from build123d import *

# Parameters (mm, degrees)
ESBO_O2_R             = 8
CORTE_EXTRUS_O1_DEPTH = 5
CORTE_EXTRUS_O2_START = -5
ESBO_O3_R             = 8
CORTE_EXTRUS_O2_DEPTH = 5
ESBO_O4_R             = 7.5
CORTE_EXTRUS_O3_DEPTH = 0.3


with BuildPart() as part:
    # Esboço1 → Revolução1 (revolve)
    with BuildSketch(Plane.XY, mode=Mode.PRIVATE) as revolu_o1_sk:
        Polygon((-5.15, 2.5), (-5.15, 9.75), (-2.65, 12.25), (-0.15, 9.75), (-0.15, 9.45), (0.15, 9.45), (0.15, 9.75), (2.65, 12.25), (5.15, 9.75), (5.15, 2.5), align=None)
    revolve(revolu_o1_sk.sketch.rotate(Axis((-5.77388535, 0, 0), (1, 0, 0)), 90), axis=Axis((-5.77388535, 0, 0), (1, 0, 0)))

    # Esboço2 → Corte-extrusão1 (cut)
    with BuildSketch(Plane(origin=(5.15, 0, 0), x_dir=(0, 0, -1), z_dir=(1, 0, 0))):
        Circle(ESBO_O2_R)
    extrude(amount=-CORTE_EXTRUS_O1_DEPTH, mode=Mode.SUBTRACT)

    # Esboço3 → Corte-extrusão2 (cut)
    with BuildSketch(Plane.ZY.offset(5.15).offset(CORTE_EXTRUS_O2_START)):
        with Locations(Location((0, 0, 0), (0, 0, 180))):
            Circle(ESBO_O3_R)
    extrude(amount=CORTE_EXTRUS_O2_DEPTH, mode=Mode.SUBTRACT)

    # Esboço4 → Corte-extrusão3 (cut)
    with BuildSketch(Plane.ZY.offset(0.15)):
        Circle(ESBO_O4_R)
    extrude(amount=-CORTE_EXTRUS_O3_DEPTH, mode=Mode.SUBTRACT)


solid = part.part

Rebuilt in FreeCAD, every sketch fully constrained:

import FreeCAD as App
import Part
import Sketcher

V = App.Vector
Q = App.Units.Quantity

doc = App.newDocument("Part")
body = doc.addObject("PartDesign::Body", "Body")

sketch1 = body.newObject("Sketcher::SketchObject", "Sketch")
sketch1.AttachmentSupport = (doc.getObject("XY_Plane"), [""])
sketch1.MapMode = "FlatFace"
sketch1.addGeometry([
    Part.LineSegment(V(-5.15, 9.75, 0), V(-5.15, 2.5, 0)),
    Part.LineSegment(V(-5.15, 2.5, 0), V(5.15, 2.5, 0)),
    Part.LineSegment(V(5.15, 2.5, 0), V(5.15, 9.75, 0)),
    Part.LineSegment(V(5.15, 9.75, 0), V(2.65, 12.25, 0)),
    Part.LineSegment(V(2.65, 12.25, 0), V(0.15, 9.75, 0)),
    Part.LineSegment(V(0.15, 9.75, 0), V(0.15, 9.45, 0)),
    Part.LineSegment(V(0.15, 9.45, 0), V(-0.15, 9.45, 0)),
    Part.LineSegment(V(-0.15, 9.45, 0), V(-0.15, 9.75, 0)),
    Part.LineSegment(V(-0.15, 9.75, 0), V(-2.65, 12.25, 0)),
    Part.LineSegment(V(-2.65, 12.25, 0), V(-5.15, 9.75, 0)),
], False)
sketch1.addConstraint([
    Sketcher.Constraint("Coincident", 0, 2, 1, 1),
    Sketcher.Constraint("Coincident", 1, 2, 2, 1),
    Sketcher.Constraint("Coincident", 2, 2, 3, 1),
    Sketcher.Constraint("Coincident", 3, 2, 4, 1),
    Sketcher.Constraint("Coincident", 4, 2, 5, 1),
    Sketcher.Constraint("Coincident", 5, 2, 6, 1),
    Sketcher.Constraint("Coincident", 6, 2, 7, 1),
    Sketcher.Constraint("Coincident", 7, 2, 8, 1),
    Sketcher.Constraint("Coincident", 8, 2, 9, 1),
    Sketcher.Constraint("Coincident", 9, 2, 0, 1),
    Sketcher.Constraint("Vertical", 0),
    Sketcher.Constraint("Horizontal", 1),
    Sketcher.Constraint("Vertical", 2),
    Sketcher.Constraint("Vertical", 5),
    Sketcher.Constraint("Horizontal", 6),
    Sketcher.Constraint("Vertical", 7),
    Sketcher.Constraint("Symmetric", 4, 2, 7, 2, -2),
    Sketcher.Constraint("Symmetric", 3, 2, 8, 2, -2),
    Sketcher.Constraint("Symmetric", 2, 2, 9, 2, -2),
    Sketcher.Constraint("Perpendicular", 3, 4),
    Sketcher.Constraint("Perpendicular", 4, 8),
    Sketcher.Constraint("Horizontal", 2, 2, 4, 2),
    Sketcher.Constraint("Equal", 6, 5),
    Sketcher.Constraint("DistanceX", 1, 1, 1, 2, Q("10.3 mm")),
    Sketcher.Constraint("DistanceX", 6, 2, 6, 1, Q("0.3 mm")),
    Sketcher.Constraint("DistanceY", 0, 2, 0, 1, Q("7.25 mm")),
    Sketcher.Constraint("DistanceY", -1, 1, 0, 2, Q("2.5 mm")),
])
revolution = body.newObject("PartDesign::Revolution", "Revolution")
revolution.Profile = sketch1
revolution.ReferenceAxis = (sketch1, ["H_Axis"])
revolution.Angle = 360

sketch2 = body.newObject("Sketcher::SketchObject", "Sketch001")
sketch2.AttachmentSupport = (doc.getObject("YZ_Plane"), [""])
sketch2.MapMode = "FlatFace"
sketch2.AttachmentOffset = App.Placement(V(0, 0, 5.15), App.Rotation())
sketch2.addGeometry(Part.Circle(V(0, 0, 0), V(0, 0, 1), 8), False)
sketch2.addConstraint([
    Sketcher.Constraint("Coincident", 0, 3, -1, 1),
    Sketcher.Constraint("Diameter", 0, Q("16 mm")),
])
pocket1 = body.newObject("PartDesign::Pocket", "Pocket")
pocket1.Profile = sketch2
pocket1.Length = 5

sketch3 = body.newObject("Sketcher::SketchObject", "Sketch002")
sketch3.AttachmentSupport = (doc.getObject("YZ_Plane"), [""])
sketch3.MapMode = "FlatFace"
sketch3.AttachmentOffset = App.Placement(V(0, 0, -0.15), App.Rotation())
sketch3.addGeometry(Part.Circle(V(0, 0, 0), V(0, 0, 1), 8), False)
sketch3.addConstraint([
    Sketcher.Constraint("Coincident", 0, 3, -1, 1),
    Sketcher.Constraint("Diameter", 0, Q("16 mm")),
])
pocket2 = body.newObject("PartDesign::Pocket", "Pocket001")
pocket2.Profile = sketch3
pocket2.Length = 5

sketch4 = body.newObject("Sketcher::SketchObject", "Sketch003")
sketch4.AttachmentSupport = (doc.getObject("YZ_Plane"), [""])
sketch4.MapMode = "FlatFace"
sketch4.AttachmentOffset = App.Placement(V(0, 0, -0.15), App.Rotation())
sketch4.addGeometry(Part.Circle(V(0, 0, 0), V(0, 0, 1), 8), False)
sketch4.addConstraint([
    Sketcher.Constraint("Coincident", 0, 3, -1, 1),
    Sketcher.Constraint("Diameter", 0, Q("15 mm")),
])
pocket3 = body.newObject("PartDesign::Pocket", "Pocket002")
pocket3.Profile = sketch4
pocket3.Length = 0.3
pocket3.Reversed = True

doc.recompute()
